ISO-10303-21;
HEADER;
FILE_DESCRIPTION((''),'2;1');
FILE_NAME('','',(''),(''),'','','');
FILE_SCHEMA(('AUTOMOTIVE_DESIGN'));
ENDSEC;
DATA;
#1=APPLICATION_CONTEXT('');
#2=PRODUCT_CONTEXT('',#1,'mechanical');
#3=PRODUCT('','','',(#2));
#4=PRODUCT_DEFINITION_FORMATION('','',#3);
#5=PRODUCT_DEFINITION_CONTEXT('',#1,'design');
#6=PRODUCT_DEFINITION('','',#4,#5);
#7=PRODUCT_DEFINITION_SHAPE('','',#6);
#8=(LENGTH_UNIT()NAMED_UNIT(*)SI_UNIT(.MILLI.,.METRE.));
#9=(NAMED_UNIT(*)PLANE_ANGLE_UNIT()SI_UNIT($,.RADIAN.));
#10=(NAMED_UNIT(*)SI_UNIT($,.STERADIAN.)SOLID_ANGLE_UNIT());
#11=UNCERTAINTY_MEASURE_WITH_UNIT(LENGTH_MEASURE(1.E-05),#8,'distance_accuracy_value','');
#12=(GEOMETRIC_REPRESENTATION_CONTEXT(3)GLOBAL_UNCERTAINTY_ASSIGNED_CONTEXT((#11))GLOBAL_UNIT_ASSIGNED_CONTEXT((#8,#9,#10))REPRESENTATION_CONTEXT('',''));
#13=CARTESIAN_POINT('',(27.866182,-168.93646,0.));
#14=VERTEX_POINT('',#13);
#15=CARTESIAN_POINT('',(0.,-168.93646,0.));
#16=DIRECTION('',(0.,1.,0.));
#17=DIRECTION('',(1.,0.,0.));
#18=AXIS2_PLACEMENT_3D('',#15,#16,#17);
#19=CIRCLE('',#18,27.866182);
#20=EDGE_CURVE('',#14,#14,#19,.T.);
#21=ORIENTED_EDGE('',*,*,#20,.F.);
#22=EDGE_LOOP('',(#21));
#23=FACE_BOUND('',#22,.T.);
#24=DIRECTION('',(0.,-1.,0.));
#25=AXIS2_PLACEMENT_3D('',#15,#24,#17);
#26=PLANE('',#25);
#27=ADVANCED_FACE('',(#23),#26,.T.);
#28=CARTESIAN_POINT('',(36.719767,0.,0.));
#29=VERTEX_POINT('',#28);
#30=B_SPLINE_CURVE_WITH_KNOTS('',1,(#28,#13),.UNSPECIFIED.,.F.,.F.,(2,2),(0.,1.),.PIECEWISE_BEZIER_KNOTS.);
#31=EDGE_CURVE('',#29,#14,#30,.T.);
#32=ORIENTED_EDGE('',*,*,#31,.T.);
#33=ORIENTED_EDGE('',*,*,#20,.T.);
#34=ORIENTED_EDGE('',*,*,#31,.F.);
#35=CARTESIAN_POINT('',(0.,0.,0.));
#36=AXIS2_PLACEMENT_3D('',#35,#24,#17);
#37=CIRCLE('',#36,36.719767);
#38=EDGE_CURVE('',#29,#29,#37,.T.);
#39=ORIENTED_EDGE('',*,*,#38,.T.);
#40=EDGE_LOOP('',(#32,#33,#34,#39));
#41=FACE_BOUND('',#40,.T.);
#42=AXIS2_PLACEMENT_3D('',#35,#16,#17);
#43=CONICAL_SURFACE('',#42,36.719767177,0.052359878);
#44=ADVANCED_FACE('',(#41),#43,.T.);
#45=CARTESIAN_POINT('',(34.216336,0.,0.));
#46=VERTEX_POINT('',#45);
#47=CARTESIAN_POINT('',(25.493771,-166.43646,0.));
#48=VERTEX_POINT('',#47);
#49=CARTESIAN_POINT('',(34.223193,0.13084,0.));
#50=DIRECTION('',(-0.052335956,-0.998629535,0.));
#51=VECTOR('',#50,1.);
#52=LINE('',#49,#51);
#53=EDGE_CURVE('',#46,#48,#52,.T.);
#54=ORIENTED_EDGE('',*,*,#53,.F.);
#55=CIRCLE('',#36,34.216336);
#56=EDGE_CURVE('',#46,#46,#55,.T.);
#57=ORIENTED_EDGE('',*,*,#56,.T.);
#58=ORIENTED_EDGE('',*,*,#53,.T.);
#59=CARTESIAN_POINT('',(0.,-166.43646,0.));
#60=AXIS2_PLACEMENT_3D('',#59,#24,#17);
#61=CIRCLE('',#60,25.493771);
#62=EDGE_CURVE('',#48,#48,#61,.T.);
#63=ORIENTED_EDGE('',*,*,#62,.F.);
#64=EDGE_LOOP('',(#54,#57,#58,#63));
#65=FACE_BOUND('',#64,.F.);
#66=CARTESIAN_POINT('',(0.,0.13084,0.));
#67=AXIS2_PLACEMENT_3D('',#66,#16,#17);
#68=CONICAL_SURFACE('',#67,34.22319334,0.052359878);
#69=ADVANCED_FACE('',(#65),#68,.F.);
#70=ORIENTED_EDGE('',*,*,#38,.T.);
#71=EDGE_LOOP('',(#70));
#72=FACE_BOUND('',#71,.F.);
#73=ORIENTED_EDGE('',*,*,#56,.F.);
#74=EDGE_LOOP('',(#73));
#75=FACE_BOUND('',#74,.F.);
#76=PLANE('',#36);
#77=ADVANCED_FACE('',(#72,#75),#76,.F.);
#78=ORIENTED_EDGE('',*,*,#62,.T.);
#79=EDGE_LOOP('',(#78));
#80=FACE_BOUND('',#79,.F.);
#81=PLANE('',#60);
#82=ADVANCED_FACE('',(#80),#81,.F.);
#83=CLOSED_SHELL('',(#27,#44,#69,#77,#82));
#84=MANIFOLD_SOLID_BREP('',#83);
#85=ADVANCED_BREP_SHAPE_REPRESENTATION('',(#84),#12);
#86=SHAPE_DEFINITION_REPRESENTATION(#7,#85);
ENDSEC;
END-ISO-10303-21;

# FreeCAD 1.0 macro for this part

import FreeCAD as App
import Part
import Sketcher


def faces_at(feature, points):
    """Names of the faces that lie closest to the given points."""
    faces = feature.Shape.Faces
    near = lambda p: min(range(len(faces)), key=lambda i: faces[i].distToShape(Part.Vertex(*p))[0])
    return sorted({f"Face{near(p) + 1}" for p in points})

doc = App.newDocument("Part")
body = doc.addObject("PartDesign::Body", "Body")

sketch1 = body.newObject("Sketcher::SketchObject", "Sketch")
sketch1.AttachmentSupport = (doc.getObject("XZ_Plane"), [""])
sketch1.MapMode = "FlatFace"
sketch1.addGeometry(Part.Circle(App.Vector(0, 0, 0), App.Vector(0, 0, 1), 37), False)
sketch1.addConstraint([
    Sketcher.Constraint("Coincident", 0, 3, -1, 1),
    Sketcher.Constraint("Diameter", 0, 73.439534),
])
pad1 = body.newObject("PartDesign::Pad", "Pad")
pad1.Profile = sketch1
pad1.Length = 168.93646
pad1.TaperAngle = -3
doc.recompute()

thickness = body.newObject("PartDesign::Thickness", "Thickness")
thickness.Base = (pad1, faces_at(pad1, [(0, 0, 0)]))
thickness.Value = 2.5
thickness.Reversed = True
thickness.Join = "Intersection"

doc.recompute()
